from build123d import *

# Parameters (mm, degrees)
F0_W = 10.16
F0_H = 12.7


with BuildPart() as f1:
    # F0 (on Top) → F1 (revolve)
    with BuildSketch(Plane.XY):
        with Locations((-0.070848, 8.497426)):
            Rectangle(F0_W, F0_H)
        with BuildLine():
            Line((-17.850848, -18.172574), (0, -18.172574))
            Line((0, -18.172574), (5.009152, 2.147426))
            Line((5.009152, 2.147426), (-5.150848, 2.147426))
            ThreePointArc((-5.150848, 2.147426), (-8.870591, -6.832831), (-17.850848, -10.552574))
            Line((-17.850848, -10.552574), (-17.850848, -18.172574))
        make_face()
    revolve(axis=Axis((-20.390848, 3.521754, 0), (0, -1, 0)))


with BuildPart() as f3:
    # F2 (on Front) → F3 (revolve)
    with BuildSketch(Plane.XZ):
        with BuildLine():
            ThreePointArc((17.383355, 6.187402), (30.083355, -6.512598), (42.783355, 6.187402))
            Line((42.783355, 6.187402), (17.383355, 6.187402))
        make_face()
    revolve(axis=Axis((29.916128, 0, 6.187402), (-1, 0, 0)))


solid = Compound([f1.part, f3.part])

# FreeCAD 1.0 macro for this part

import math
import FreeCAD as App
import Part
import Sketcher
from FreeCAD import Vector
Q = App.Units.Quantity

doc = App.newDocument("Part")
body = doc.addObject("PartDesign::Body", "Body")

sketch1 = body.newObject("Sketcher::SketchObject", "Sketch")
sketch1.AttachmentSupport = (doc.getObject("XY_Plane"), [""])
sketch1.MapMode = "FlatFace"
sketch1.addGeometry([
    Part.LineSegment(Vector(-5.150848, 14.847426, 0), Vector(-5.150848, 2.147426, 0)),
    Part.ArcOfCircle(Part.Circle(Vector(-17.850845, 2.147423, 0), Vector(0, 0, 1), 12.699997), math.radians(-90.000014), math.radians(0.000014)),
    Part.LineSegment(Vector(-17.850848, -10.552574, 0), Vector(-17.850848, -18.172574, 0)),
    Part.LineSegment(Vector(-17.850848, -18.172574, 0), Vector(0, -18.172574, 0)),
    Part.LineSegment(Vector(0, -18.172574, 0), Vector(5.009152, 2.147426, 0)),
    Part.LineSegment(Vector(5.009152, 2.147426, 0), Vector(5.009152, 14.847426, 0)),
    Part.LineSegment(Vector(5.009152, 14.847426, 0), Vector(-5.150848, 14.847426, 0)),
], False)
sketch1.addGeometry(Part.LineSegment(Vector(-20.390848, 14.847426, 0), Vector(-20.390848, -18.172574, 0)), True)
sketch1.addConstraint([
    Sketcher.Constraint("Tangent", 0, 2, 1, 2),
    Sketcher.Constraint("Coincident", 1, 1, 2, 1),
    Sketcher.Constraint("Coincident", 2, 2, 3, 1),
    Sketcher.Constraint("Coincident", 3, 2, 4, 1),
    Sketcher.Constraint("Coincident", 4, 2, 5, 1),
    Sketcher.Constraint("Coincident", 5, 2, 6, 1),
    Sketcher.Constraint("Coincident", 6, 2, 0, 1),
    Sketcher.Constraint("Vertical", 0),
    Sketcher.Constraint("Vertical", 2),
    Sketcher.Constraint("Horizontal", 3),
    Sketcher.Constraint("Vertical", 5),
    Sketcher.Constraint("Horizontal", 6),
    Sketcher.Constraint("Vertical", 7),
    Sketcher.Constraint("PointOnObject", 3, 2, -2),
    Sketcher.Constraint("Horizontal", 0, 2, 4, 2),
    Sketcher.Constraint("Horizontal", 6, 2, 7, 1),
    Sketcher.Constraint("Horizontal", 3, 2, 7, 2),
    Sketcher.Constraint("Radius", 1, Q("0.4999999 in")),
    Sketcher.Constraint("DistanceX", 6, 2, 6, 1, Q("0.4 in")),
    Sketcher.Constraint("DistanceY", 0, 2, 0, 1, Q("0.5 in")),
    Sketcher.Constraint("DistanceY", 2, 2, 2, 1, Q("0.3 in")),
    Sketcher.Constraint("DistanceX", 7, 1, 5, 2, Q("1 in")),
    Sketcher.Constraint("DistanceX", 1, 1, 0, 2, Q("0.5 in")),
    Sketcher.Constraint("DistanceX", 3, 1, 3, 2, 17.850848),
    Sketcher.Constraint("DistanceY", -1, 1, 1, 3, 2.147423),
])
revolution = body.newObject("PartDesign::Revolution", "Revolution")
revolution.Profile = sketch1
revolution.ReferenceAxis = (sketch1, ["Axis0"])
revolution.Angle = 360
body2 = doc.addObject("PartDesign::Body", "Body001")

sketch2 = body2.newObject("Sketcher::SketchObject", "Sketch001")
sketch2.AttachmentSupport = (doc.getObject("XZ_Plane001"), [""])
sketch2.MapMode = "FlatFace"
sketch2.addGeometry([
    Part.ArcOfCircle(Part.Circle(Vector(30.083355, 6.187402, 0), Vector(0, 0, 1), 12.7), math.radians(180), math.radians(360)),
    Part.LineSegment(Vector(42.783355, 6.187402, 0), Vector(17.383355, 6.187402, 0)),
], False)
sketch2.addGeometry(Part.LineSegment(Vector(42.783355, 6.187402, 0), Vector(17.383355, 6.187402, 0)), True)
sketch2.addConstraint([
    Sketcher.Constraint("Coincident", 0, 1, 1, 2),
    Sketcher.Constraint("Coincident", 1, 1, 0, 2),
    Sketcher.Constraint("Horizontal", 1),
    Sketcher.Constraint("Horizontal", 2),
    Sketcher.Constraint("Coincident", 2, 1, 1, 1),
    Sketcher.Constraint("Equal", 1, 2),
    Sketcher.Constraint("Radius", 0, Q("0.5 in")),
    Sketcher.Constraint("DistanceY", -1, 1, 0, 3, 6.187402),
    Sketcher.Constraint("DistanceY", -1, 1, 1, 1, 6.187402),
    Sketcher.Constraint("DistanceX", -1, 1, 0, 3, 30.083355),
])
revolution2 = body2.newObject("PartDesign::Revolution", "Revolution001")
revolution2.Profile = sketch2
revolution2.ReferenceAxis = (sketch2, ["Axis0"])
revolution2.Angle = 360

doc.recompute()
